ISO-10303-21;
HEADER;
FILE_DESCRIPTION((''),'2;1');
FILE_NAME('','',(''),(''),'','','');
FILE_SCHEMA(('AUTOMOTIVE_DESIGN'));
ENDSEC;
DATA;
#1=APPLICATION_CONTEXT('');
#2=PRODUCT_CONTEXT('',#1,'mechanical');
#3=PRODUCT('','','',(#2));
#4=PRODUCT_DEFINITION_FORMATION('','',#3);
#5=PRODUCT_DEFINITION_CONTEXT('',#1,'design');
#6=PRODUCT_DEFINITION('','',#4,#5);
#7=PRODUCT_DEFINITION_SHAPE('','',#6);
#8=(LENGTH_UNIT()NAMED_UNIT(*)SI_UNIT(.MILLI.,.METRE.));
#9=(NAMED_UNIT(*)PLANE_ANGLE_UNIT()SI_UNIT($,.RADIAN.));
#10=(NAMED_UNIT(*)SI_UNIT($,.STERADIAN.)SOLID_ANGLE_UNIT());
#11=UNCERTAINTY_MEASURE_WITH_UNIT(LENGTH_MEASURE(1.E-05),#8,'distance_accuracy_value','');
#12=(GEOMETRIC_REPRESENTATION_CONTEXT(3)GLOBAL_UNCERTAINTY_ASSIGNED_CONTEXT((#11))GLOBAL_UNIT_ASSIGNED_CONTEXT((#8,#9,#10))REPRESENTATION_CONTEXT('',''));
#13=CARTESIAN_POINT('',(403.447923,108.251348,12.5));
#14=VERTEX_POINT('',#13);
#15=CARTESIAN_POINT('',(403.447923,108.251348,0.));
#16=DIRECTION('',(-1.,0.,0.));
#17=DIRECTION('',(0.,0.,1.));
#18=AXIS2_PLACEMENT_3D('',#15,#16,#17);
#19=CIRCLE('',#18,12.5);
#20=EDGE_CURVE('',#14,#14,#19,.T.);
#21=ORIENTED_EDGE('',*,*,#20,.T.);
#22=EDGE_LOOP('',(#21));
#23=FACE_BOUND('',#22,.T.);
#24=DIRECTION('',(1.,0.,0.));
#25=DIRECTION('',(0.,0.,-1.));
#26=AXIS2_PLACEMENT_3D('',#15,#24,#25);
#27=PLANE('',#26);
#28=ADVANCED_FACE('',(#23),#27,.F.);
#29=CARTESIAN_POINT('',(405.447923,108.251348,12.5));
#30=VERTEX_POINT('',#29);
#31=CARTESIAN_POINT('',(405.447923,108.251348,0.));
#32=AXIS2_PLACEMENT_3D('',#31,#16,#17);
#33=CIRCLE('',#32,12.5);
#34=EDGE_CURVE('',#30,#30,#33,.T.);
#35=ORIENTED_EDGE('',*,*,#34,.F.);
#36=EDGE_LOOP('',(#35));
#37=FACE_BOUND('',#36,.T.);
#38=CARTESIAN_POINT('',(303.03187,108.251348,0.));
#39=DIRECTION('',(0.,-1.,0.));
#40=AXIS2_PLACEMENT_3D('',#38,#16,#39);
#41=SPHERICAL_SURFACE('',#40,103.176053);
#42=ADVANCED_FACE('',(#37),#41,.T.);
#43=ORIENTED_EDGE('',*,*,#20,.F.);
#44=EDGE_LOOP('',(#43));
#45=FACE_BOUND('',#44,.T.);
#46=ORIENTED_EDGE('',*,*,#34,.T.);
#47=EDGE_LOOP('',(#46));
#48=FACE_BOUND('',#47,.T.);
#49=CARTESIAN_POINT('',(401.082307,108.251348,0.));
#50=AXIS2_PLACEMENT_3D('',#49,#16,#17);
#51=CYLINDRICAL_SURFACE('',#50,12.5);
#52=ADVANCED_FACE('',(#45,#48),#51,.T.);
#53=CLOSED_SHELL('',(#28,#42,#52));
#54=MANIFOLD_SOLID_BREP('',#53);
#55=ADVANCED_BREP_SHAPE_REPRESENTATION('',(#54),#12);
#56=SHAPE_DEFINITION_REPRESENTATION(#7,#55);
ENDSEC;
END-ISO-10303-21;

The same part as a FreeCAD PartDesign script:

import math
import FreeCAD as App
import Part
import Sketcher

doc = App.newDocument("Part")
body = doc.addObject("PartDesign::Body", "Body")

# Sketch on XY plane
sketch1 = body.newObject("Sketcher::SketchObject", "Sketch")
sketch1.AttachmentSupport = (doc.getObject("XY_Plane"), [""])
sketch1.MapMode = "FlatFace"
sketch1.addGeometry([
    Part.LineSegment(App.Vector(403.447923, 120.751348, 0), App.Vector(403.447923, 108.251348, 0)),
    Part.LineSegment(App.Vector(403.447923, 108.251348, 0), App.Vector(406.207923, 108.251348, 0)),
    Part.ArcOfCircle(Part.Circle(App.Vector(303.03187, 108.251348, 0), App.Vector(0, 0, 1), 103.176053), math.radians(0), math.radians(6.958601)),
    Part.LineSegment(App.Vector(405.447923, 120.751348, 0), App.Vector(403.447923, 120.751348, 0)),
], False)
sketch1.addGeometry(Part.LineSegment(App.Vector(303.03187, 108.251348, 0), App.Vector(406.207923, 108.251348, 0)), True)  # axis
sketch1.addConstraint([
    Sketcher.Constraint("Coincident", 0, 2, 1, 1),
    Sketcher.Constraint("Coincident", 1, 2, 2, 1),
    Sketcher.Constraint("Coincident", 2, 2, 3, 1),
    Sketcher.Constraint("Coincident", 3, 2, 0, 1),
    Sketcher.Constraint("Vertical", 0),
    Sketcher.Constraint("Horizontal", 1),
    Sketcher.Constraint("Horizontal", 3),
    Sketcher.Constraint("Horizontal", 4),
    Sketcher.Constraint("Coincident", 4, 1, 2, 3),
    Sketcher.Constraint("Coincident", 4, 2, 1, 2),
    Sketcher.Constraint("DistanceX", 3, 2, 3, 1, 2.0),
    Sketcher.Constraint("DistanceY", 0, 2, 0, 1, 12.5),
    Sketcher.Constraint("DistanceX", 1, 1, 1, 2, 2.76),
    Sketcher.Constraint("DistanceX", -1, 1, 2, 3, 303.03187),
    Sketcher.Constraint("DistanceY", -1, 1, 2, 3, 108.251348),
])
revolution = body.newObject("PartDesign::Revolution", "Revolution")
revolution.Profile = sketch1
revolution.ReferenceAxis = (sketch1, ["Axis0"])
revolution.Angle = 360

doc.recompute()
